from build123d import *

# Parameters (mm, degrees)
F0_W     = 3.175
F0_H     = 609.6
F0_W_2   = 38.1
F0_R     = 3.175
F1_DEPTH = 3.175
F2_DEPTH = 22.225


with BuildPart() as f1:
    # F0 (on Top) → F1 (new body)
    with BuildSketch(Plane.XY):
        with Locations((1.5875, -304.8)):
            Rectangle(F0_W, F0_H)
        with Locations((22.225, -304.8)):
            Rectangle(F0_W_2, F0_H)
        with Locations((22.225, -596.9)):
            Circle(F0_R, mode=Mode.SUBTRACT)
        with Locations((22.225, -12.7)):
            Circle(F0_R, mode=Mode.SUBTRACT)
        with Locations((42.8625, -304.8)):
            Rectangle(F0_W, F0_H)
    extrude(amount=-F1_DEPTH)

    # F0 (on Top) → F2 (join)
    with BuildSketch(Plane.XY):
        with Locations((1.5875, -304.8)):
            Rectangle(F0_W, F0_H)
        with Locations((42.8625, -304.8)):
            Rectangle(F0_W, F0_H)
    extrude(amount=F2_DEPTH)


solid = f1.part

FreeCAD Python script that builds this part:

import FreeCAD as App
import Part
import Sketcher
Q = App.Units.Quantity

doc = App.newDocument("Part")
body = doc.addObject("PartDesign::Body", "Body")

sketch1 = doc.addObject("Sketcher::SketchObject", "Sketch")
body.addObject(sketch1)
sketch1.AttachmentSupport = (doc.XY_Plane, [""])
sketch1.MapMode = "FlatFace"
sketch1.addGeometry(Part.LineSegment(App.Vector(0, 0, 0), App.Vector(0, -609.6, 0)), False)
sketch1.addGeometry(Part.LineSegment(App.Vector(0, -609.6, 0), App.Vector(44.5, -609.6, 0)), False)
sketch1.addGeometry(Part.LineSegment(App.Vector(44.5, -609.6, 0), App.Vector(44.5, 0, 0)), False)
sketch1.addGeometry(Part.LineSegment(App.Vector(44.5, 0, 0), App.Vector(0, 0, 0)), False)
sketch1.addGeometry(Part.Circle(App.Vector(22.2, -596.9, 0), App.Vector(0, 0, 1), 3.2), False)
sketch1.addGeometry(Part.Circle(App.Vector(22.2, -12.7, 0), App.Vector(0, 0, 1), 3.2), False)
sketch1.addConstraint(Sketcher.Constraint("Coincident", 0, 2, 1, 1))
sketch1.addConstraint(Sketcher.Constraint("Coincident", 1, 2, 2, 1))
sketch1.addConstraint(Sketcher.Constraint("Coincident", 2, 2, 3, 1))
sketch1.addConstraint(Sketcher.Constraint("Coincident", 3, 2, 0, 1))
sketch1.addConstraint(Sketcher.Constraint("Vertical", 0))
sketch1.addConstraint(Sketcher.Constraint("Horizontal", 1))
sketch1.addConstraint(Sketcher.Constraint("Vertical", 2))
sketch1.addConstraint(Sketcher.Constraint("Horizontal", 3))
sketch1.addConstraint(Sketcher.Constraint("Coincident", 3, 2, -1, 1))
sketch1.addConstraint(Sketcher.Constraint("Equal", 4, 5))
sketch1.addConstraint(Sketcher.Constraint("Vertical", 4, 3, 5, 3))
sketch1.addConstraint(Sketcher.Constraint("Diameter", 4, Q("0.25 in")))
sketch1.addConstraint(Sketcher.Constraint("DistanceY", 0, 2, 0, 1, Q("24 in")))
sketch1.addConstraint(Sketcher.Constraint("DistanceY", 4, 3, 5, 3, Q("23 in")))
sketch1.addConstraint(Sketcher.Constraint("DistanceX", 1, 1, 1, 2, Q("1.75 in")))
sketch1.addConstraint(Sketcher.Constraint("DistanceY", 4, 3, -1, 1, Q("23.5 in")))
sketch1.addConstraint(Sketcher.Constraint("DistanceX", -1, 1, 4, 3, Q("0.875 in")))
pad1 = doc.addObject("PartDesign::Pad", "Pad")
body.addObject(pad1)
pad1.Profile = sketch1
pad1.Length = Q("0.125 in")
pad1.Reversed = True

sketch2 = doc.addObject("Sketcher::SketchObject", "Sketch001")
body.addObject(sketch2)
sketch2.AttachmentSupport = (doc.XY_Plane, [""])
sketch2.MapMode = "FlatFace"
sketch2.addGeometry(Part.LineSegment(App.Vector(0, 0, 0), App.Vector(0, -609.6, 0)), False)
sketch2.addGeometry(Part.LineSegment(App.Vector(0, -609.6, 0), App.Vector(3.2, -609.6, 0)), False)
sketch2.addGeometry(Part.LineSegment(App.Vector(3.2, -609.6, 0), App.Vector(3.2, 0, 0)), False)
sketch2.addGeometry(Part.LineSegment(App.Vector(3.2, 0, 0), App.Vector(0, 0, 0)), False)
sketch2.addGeometry(Part.LineSegment(App.Vector(41.3, 0, 0), App.Vector(41.3, -609.6, 0)), False)
sketch2.addGeometry(Part.LineSegment(App.Vector(41.3, -609.6, 0), App.Vector(44.5, -609.6, 0)), False)
sketch2.addGeometry(Part.LineSegment(App.Vector(44.5, -609.6, 0), App.Vector(44.5, 0, 0)), False)
sketch2.addGeometry(Part.LineSegment(App.Vector(44.5, 0, 0), App.Vector(41.3, 0, 0)), False)
sketch2.addConstraint(Sketcher.Constraint("Coincident", 0, 2, 1, 1))
sketch2.addConstraint(Sketcher.Constraint("Coincident", 1, 2, 2, 1))
sketch2.addConstraint(Sketcher.Constraint("Coincident", 2, 2, 3, 1))
sketch2.addConstraint(Sketcher.Constraint("Coincident", 3, 2, 0, 1))
sketch2.addConstraint(Sketcher.Constraint("Coincident", 4, 2, 5, 1))
sketch2.addConstraint(Sketcher.Constraint("Coincident", 5, 2, 6, 1))
sketch2.addConstraint(Sketcher.Constraint("Coincident", 6, 2, 7, 1))
sketch2.addConstraint(Sketcher.Constraint("Coincident", 7, 2, 4, 1))
sketch2.addConstraint(Sketcher.Constraint("Vertical", 0))
sketch2.addConstraint(Sketcher.Constraint("Horizontal", 1))
sketch2.addConstraint(Sketcher.Constraint("Vertical", 2))
sketch2.addConstraint(Sketcher.Constraint("Horizontal", 3))
sketch2.addConstraint(Sketcher.Constraint("Vertical", 4))
sketch2.addConstraint(Sketcher.Constraint("Horizontal", 5))
sketch2.addConstraint(Sketcher.Constraint("Vertical", 6))
sketch2.addConstraint(Sketcher.Constraint("Horizontal", 7))
sketch2.addConstraint(Sketcher.Constraint("Coincident", 3, 2, -1, 1))
sketch2.addConstraint(Sketcher.Constraint("PointOnObject", 6, 2, -1))
sketch2.addConstraint(Sketcher.Constraint("Horizontal", 1, 2, 4, 2))
sketch2.addConstraint(Sketcher.Constraint("Equal", 3, 5))
sketch2.addConstraint(Sketcher.Constraint("DistanceY", 0, 2, 0, 1, Q("24 in")))
sketch2.addConstraint(Sketcher.Constraint("DistanceX", 1, 2, 4, 2, Q("1.5 in")))
sketch2.addConstraint(Sketcher.Constraint("DistanceX", 1, 1, 1, 2, Q("0.125 in")))
pad2 = doc.addObject("PartDesign::Pad", "Pad001")
body.addObject(pad2)
pad2.Profile = sketch2
pad2.Length = Q("0.875 in")

doc.recompute()
